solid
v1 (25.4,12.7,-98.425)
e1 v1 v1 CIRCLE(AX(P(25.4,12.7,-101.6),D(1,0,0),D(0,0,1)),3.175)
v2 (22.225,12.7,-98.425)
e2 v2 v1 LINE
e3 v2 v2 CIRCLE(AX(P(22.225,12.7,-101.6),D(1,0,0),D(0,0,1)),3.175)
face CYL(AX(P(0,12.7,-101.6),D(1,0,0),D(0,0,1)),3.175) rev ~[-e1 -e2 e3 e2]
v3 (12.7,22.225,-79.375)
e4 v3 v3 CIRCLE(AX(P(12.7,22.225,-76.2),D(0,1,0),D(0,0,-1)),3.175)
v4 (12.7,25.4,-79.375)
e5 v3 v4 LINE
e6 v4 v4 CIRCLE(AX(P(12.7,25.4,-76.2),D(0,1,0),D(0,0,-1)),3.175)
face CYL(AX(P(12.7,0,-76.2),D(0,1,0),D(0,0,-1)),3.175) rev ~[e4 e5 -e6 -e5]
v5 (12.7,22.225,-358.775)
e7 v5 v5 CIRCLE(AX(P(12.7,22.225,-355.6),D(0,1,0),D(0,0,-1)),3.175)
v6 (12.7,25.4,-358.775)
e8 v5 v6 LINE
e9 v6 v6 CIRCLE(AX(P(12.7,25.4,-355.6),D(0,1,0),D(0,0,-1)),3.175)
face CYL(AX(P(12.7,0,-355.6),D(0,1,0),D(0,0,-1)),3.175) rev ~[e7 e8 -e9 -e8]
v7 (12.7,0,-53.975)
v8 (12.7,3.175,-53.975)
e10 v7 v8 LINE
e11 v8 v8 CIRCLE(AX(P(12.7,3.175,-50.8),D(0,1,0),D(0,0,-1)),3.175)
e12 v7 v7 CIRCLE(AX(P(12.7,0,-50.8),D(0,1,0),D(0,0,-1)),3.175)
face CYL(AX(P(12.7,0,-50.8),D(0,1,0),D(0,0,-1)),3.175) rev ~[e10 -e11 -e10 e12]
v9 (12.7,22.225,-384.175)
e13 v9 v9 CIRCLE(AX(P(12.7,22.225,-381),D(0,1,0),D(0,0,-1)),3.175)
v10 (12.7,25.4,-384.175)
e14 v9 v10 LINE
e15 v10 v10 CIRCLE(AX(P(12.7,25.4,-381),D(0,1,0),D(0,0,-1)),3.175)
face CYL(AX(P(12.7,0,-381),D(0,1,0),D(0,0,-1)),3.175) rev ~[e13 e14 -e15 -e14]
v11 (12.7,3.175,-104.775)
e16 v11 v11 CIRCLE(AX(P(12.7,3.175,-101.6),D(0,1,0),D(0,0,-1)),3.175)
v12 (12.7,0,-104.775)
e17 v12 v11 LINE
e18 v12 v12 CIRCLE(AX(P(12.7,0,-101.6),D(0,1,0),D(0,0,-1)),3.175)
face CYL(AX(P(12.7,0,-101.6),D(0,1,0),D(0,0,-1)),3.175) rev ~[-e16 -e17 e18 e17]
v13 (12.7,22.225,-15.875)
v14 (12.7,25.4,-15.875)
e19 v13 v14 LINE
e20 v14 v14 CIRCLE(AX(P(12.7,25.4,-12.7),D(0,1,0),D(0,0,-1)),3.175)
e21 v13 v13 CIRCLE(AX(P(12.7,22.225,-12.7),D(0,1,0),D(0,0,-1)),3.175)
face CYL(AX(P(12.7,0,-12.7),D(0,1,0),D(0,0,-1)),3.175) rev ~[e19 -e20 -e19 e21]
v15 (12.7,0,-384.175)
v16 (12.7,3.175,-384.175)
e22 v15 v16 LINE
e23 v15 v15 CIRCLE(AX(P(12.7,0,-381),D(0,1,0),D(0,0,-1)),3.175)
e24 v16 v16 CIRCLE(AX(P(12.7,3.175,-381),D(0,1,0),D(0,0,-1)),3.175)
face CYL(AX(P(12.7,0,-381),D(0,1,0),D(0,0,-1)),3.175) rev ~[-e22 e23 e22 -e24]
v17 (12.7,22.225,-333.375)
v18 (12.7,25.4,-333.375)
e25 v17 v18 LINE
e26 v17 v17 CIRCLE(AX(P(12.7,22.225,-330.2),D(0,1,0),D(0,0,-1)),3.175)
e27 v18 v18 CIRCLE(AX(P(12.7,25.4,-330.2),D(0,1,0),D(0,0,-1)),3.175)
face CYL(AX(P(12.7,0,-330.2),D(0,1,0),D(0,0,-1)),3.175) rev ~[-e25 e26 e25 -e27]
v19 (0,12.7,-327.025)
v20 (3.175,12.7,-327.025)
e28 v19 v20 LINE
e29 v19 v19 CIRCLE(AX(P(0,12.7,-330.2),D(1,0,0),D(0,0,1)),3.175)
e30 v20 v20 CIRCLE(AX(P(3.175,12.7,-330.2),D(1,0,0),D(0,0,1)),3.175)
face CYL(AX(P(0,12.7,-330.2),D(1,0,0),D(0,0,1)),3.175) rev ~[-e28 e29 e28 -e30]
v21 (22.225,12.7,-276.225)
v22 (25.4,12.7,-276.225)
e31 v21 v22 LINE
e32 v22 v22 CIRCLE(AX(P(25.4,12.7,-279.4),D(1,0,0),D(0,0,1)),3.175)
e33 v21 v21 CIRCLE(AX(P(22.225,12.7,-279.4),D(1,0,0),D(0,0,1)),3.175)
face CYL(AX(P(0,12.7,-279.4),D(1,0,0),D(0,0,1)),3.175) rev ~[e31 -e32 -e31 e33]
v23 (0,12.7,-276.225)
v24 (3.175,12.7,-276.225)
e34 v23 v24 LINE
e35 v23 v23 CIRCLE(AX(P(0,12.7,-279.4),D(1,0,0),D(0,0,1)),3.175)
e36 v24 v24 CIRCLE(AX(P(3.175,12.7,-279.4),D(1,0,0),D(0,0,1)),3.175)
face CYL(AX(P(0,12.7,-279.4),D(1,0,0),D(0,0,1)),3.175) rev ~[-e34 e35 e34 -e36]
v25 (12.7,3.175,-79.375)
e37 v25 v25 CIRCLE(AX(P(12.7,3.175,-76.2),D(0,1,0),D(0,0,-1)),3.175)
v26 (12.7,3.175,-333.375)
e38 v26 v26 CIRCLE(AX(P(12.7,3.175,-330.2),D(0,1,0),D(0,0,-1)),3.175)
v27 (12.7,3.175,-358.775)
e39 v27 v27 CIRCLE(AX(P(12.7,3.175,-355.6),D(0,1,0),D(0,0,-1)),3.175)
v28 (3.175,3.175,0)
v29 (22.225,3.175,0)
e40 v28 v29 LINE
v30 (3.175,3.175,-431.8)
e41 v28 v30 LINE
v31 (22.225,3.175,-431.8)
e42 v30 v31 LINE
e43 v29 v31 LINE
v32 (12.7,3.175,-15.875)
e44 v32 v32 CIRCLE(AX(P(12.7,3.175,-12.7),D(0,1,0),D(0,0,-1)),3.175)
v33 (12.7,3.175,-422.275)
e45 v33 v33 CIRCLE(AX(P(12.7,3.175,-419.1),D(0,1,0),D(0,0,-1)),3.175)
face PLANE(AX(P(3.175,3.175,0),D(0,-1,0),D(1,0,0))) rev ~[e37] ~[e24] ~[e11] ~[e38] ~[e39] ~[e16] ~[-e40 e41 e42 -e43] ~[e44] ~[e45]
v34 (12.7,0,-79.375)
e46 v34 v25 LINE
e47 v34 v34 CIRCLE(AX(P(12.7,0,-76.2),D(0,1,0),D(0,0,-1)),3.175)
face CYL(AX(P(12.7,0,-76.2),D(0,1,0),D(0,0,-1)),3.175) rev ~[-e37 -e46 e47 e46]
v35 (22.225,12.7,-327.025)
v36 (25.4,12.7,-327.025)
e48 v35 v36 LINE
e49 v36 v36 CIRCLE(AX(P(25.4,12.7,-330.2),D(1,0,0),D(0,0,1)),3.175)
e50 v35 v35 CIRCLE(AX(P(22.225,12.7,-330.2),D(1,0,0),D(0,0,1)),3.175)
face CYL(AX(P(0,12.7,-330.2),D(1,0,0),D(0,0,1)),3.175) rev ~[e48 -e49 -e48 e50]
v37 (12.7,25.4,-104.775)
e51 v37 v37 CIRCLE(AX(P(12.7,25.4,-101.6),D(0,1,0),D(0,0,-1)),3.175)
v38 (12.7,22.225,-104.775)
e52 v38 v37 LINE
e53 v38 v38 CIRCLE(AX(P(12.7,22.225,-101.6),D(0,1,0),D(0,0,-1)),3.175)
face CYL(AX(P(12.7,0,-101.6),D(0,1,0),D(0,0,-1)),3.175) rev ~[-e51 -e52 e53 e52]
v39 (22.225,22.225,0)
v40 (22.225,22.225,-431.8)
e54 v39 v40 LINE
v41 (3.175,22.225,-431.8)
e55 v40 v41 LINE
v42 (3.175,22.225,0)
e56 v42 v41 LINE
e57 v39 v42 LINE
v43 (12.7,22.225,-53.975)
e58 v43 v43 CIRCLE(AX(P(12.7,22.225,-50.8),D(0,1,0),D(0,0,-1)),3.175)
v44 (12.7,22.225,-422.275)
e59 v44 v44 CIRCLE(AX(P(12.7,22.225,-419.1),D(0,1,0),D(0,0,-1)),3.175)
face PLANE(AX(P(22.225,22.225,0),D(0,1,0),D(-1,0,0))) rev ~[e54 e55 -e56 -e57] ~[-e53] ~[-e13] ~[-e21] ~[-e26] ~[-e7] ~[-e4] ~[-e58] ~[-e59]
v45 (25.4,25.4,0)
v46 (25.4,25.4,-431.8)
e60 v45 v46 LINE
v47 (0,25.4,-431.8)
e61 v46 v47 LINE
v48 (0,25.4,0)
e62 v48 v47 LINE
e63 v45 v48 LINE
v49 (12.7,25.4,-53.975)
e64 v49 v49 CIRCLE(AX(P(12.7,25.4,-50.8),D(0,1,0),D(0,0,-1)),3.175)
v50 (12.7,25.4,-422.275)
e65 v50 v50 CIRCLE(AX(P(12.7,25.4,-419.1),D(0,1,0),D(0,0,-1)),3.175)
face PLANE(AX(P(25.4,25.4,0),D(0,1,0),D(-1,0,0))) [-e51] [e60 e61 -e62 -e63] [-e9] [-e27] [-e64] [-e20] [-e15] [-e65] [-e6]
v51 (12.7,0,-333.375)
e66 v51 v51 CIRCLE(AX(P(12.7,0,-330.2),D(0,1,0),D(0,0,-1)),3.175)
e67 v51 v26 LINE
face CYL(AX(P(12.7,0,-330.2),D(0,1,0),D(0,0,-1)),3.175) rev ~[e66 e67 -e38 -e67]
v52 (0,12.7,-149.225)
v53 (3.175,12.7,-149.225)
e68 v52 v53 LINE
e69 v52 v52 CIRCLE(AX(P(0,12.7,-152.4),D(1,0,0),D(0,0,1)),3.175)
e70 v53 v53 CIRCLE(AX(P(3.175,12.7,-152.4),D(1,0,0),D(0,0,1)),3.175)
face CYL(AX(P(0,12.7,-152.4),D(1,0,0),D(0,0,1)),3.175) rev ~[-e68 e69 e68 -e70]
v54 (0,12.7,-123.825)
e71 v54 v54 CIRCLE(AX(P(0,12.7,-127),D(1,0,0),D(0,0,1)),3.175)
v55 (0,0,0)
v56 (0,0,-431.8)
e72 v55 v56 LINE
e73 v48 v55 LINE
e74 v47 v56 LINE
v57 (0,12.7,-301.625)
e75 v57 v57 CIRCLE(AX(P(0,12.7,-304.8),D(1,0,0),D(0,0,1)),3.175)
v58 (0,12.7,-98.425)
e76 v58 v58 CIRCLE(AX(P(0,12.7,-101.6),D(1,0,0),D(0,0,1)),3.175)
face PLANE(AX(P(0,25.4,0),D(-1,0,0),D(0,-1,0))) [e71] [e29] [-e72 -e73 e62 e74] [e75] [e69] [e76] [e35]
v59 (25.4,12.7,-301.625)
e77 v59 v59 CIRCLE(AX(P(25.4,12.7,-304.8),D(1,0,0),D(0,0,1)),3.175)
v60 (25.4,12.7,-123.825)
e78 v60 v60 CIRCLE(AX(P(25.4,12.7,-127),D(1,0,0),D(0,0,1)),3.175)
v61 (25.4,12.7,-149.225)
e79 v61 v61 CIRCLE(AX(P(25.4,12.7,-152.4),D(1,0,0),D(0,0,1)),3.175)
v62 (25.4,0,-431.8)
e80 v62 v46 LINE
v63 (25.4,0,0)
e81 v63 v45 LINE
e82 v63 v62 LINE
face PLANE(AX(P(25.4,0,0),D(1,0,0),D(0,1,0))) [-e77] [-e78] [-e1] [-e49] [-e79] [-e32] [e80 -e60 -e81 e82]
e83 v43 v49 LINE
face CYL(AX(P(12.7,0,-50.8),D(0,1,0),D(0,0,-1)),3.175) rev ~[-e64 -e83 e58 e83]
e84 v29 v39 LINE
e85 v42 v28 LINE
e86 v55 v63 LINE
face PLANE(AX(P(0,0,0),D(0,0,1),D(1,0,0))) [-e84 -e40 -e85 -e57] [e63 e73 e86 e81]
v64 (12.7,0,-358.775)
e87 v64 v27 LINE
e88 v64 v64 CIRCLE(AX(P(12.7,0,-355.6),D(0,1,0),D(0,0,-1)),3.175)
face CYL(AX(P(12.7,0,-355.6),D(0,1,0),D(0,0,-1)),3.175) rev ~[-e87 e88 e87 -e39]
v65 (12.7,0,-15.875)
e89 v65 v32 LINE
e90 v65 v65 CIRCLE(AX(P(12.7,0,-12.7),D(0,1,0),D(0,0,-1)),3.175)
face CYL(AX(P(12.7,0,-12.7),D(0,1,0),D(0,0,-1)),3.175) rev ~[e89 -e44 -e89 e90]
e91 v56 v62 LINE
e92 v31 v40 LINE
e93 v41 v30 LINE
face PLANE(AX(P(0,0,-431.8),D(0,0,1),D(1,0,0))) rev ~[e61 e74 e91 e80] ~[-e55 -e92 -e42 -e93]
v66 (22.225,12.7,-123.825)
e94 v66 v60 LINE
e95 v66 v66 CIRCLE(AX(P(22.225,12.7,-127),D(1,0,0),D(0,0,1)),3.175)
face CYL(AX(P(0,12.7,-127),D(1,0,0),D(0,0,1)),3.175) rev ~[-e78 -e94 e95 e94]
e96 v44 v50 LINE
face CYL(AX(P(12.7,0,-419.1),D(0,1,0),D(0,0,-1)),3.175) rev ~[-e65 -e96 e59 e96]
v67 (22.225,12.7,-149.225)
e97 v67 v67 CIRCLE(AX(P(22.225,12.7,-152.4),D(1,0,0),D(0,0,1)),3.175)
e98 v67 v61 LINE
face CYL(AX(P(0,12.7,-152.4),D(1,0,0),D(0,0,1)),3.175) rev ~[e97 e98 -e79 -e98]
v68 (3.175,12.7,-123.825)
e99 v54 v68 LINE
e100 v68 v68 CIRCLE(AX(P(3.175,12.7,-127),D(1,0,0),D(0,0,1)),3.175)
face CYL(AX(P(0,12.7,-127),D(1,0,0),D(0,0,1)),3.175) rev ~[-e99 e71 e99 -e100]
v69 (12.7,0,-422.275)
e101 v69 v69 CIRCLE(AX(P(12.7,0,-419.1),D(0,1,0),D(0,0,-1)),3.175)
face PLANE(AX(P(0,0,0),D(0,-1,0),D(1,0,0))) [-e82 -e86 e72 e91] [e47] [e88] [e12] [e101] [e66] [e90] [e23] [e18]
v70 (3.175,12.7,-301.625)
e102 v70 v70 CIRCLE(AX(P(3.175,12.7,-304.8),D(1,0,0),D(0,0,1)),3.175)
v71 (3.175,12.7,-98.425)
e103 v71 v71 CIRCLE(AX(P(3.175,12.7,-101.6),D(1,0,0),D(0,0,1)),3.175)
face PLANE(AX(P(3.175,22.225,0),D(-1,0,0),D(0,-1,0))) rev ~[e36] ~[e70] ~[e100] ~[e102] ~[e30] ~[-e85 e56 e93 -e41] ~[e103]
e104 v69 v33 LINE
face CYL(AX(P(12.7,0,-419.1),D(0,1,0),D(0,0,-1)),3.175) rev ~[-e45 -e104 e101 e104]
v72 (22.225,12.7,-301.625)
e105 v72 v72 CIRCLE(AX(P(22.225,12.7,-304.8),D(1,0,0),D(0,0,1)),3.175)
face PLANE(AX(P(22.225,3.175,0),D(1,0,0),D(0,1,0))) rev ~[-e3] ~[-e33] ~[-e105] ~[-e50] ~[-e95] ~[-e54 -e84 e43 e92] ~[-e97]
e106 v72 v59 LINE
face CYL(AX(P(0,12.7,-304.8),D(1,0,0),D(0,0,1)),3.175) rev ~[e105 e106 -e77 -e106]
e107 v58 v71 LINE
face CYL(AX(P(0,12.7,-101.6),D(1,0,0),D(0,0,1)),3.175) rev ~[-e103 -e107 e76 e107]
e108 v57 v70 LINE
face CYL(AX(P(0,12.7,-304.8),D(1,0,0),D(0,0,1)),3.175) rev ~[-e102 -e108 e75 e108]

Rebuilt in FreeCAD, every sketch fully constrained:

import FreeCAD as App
import Part
import Sketcher

V = App.Vector
Q = App.Units.Quantity

doc = App.newDocument("Part")
params = doc.addObject("Spreadsheet::Sheet", "Params")
for row, (alias, value) in enumerate([
    ("sketch1_width", "1 in"),
    ("pad1_length", "17 in"),
    ("sketch2_diameter", "0.25 in"),
    ("hole_diameter", "0.25 in"),
    ("hole_depth", "1 in"),
    ("sketch3_diameter", "0.25 in"),
    ("hole2_diameter", "0.25 in"),
    ("hole2_depth", "1 in"),
], start=1):
    params.set(f"A{row}", alias)
    params.set(f"B{row}", "=" + value)
    params.setAlias(f"B{row}", alias)

body = doc.addObject("PartDesign::Body", "Body")

# Sketch on XY plane
sketch1 = body.newObject("Sketcher::SketchObject", "Sketch")
sketch1.AttachmentSupport = (doc.getObject("XY_Plane"), [""])
sketch1.MapMode = "FlatFace"
sketch1.addGeometry([
    Part.LineSegment(V(0, 25.4, 0), V(0, 0, 0)),  # 0
    Part.LineSegment(V(0, 0, 0), V(25.4, 0, 0)),  # 1
    Part.LineSegment(V(25.4, 0, 0), V(25.4, 25.4, 0)),  # 2
    Part.LineSegment(V(25.4, 25.4, 0), V(0, 25.4, 0)),  # 3
    Part.LineSegment(V(22.225, 3.175, 0), V(3.175, 3.175, 0)),  # 4
    Part.LineSegment(V(3.175, 3.175, 0), V(3.175, 22.225, 0)),  # 5
    Part.LineSegment(V(3.175, 22.225, 0), V(22.225, 22.225, 0)),  # 6
    Part.LineSegment(V(22.225, 22.225, 0), V(22.225, 3.175, 0)),  # 7
], False)
sketch1.addConstraint([
    Sketcher.Constraint("Coincident", 0, 2, 1, 1),
    Sketcher.Constraint("Coincident", 1, 2, 2, 1),
    Sketcher.Constraint("Coincident", 2, 2, 3, 1),
    Sketcher.Constraint("Coincident", 3, 2, 0, 1),
    Sketcher.Constraint("Coincident", 4, 2, 5, 1),
    Sketcher.Constraint("Coincident", 5, 2, 6, 1),
    Sketcher.Constraint("Coincident", 6, 2, 7, 1),
    Sketcher.Constraint("Coincident", 7, 2, 4, 1),
    Sketcher.Constraint("Vertical", 0),
    Sketcher.Constraint("Horizontal", 1),
    Sketcher.Constraint("Vertical", 2),
    Sketcher.Constraint("Horizontal", 3),
    Sketcher.Constraint("Horizontal", 4),
    Sketcher.Constraint("Vertical", 5),
    Sketcher.Constraint("Horizontal", 6),
    Sketcher.Constraint("Vertical", 7),
    Sketcher.Constraint("Coincident", 0, 2, -1, 1),
    Sketcher.Constraint("Equal", 3, 0),
    Sketcher.Constraint("Equal", 6, 5),
    Sketcher.Constraint("DistanceX", 1, 1, 1, 2, Q("1 in")),
    Sketcher.Constraint("DistanceX", -1, 1, 4, 2, Q("0.125 in")),
    Sketcher.Constraint("DistanceY", -1, 1, 4, 2, Q("0.125 in")),
    Sketcher.Constraint("DistanceY", 5, 2, 3, 2, Q("0.125 in")),
])
sketch1.setExpression("Constraints[19]", "Params.sketch1_width")
pad1 = body.newObject("PartDesign::Pad", "Pad")
pad1.Profile = sketch1
pad1.setExpression("Length", "Params.pad1_length")
pad1.Reversed = True

# Sketch on YZ plane
sketch2 = body.newObject("Sketcher::SketchObject", "Sketch001")
sketch2.AttachmentSupport = (doc.getObject("YZ_Plane"), [""])
sketch2.MapMode = "FlatFace"
sketch2.addGeometry([
    Part.Circle(V(12.7, -304.8, 0), V(0, 0, 1), 3.175),  # 0
    Part.Circle(V(12.7, -279.4, 0), V(0, 0, 1), 3.175),  # 1
    Part.Circle(V(12.7, -330.2, 0), V(0, 0, 1), 3.175),  # 2
    Part.Circle(V(12.7, -127, 0), V(0, 0, 1), 3.175),  # 3
    Part.Circle(V(12.7, -101.6, 0), V(0, 0, 1), 3.175),  # 4
    Part.Circle(V(12.7, -152.4, 0), V(0, 0, 1), 3.175),  # 5
], False)
sketch2.addConstraint([
    Sketcher.Constraint("Equal", 0, 1),
    Sketcher.Constraint("Equal", 1, 2),
    Sketcher.Constraint("Equal", 2, 3),
    Sketcher.Constraint("Equal", 3, 4),
    Sketcher.Constraint("Equal", 4, 5),
    Sketcher.Constraint("Vertical", 0, 3, 1, 3),
    Sketcher.Constraint("Vertical", 1, 3, 2, 3),
    Sketcher.Constraint("Vertical", 2, 3, 3, 3),
    Sketcher.Constraint("Vertical", 3, 3, 4, 3),
    Sketcher.Constraint("Vertical", 4, 3, 5, 3),
    Sketcher.Constraint("Diameter", 0, Q("0.25 in")),
    Sketcher.Constraint("DistanceY", 0, 3, -1, 1, Q("12 in")),
    Sketcher.Constraint("DistanceY", 1, 3, -1, 1, Q("11 in")),
    Sketcher.Constraint("DistanceY", 2, 3, -1, 1, Q("13 in")),
    Sketcher.Constraint("DistanceY", 3, 3, -1, 1, Q("5 in")),
    Sketcher.Constraint("DistanceY", 4, 3, -1, 1, Q("4 in")),
    Sketcher.Constraint("DistanceY", 5, 3, -1, 1, Q("6 in")),
    Sketcher.Constraint("DistanceX", -1, 1, 0, 3, Q("0.5 in")),
])
sketch2.setExpression("Constraints[10]", "Params.sketch2_diameter")
doc.recompute()
hole = body.newObject("PartDesign::Hole", "Hole")
hole.Profile = sketch2
hole.ThreadType = "None"
hole.setExpression("Diameter", "Params.hole_diameter")
hole.DepthType = "Dimension"
hole.setExpression("Depth", "Params.hole_depth")
hole.DrillPoint = "Angled"
hole.DrillPointAngle = 118
hole.Reversed = True

# Sketch on XZ plane
sketch3 = body.newObject("Sketcher::SketchObject", "Sketch002")
sketch3.AttachmentSupport = (doc.getObject("XZ_Plane"), [""])
sketch3.MapMode = "FlatFace"
sketch3.addGeometry([
    Part.Circle(V(12.7, -330.2, 0), V(0, 0, 1), 3.175),  # 0
    Part.Circle(V(12.7, -355.6, 0), V(0, 0, 1), 3.175),  # 1
    Part.Circle(V(12.7, -381, 0), V(0, 0, 1), 3.175),  # 2
    Part.Circle(V(12.7, -101.6, 0), V(0, 0, 1), 3.175),  # 3
    Part.Circle(V(12.7, -76.2, 0), V(0, 0, 1), 3.175),  # 4
    Part.Circle(V(12.7, -50.8, 0), V(0, 0, 1), 3.175),  # 5
    Part.Circle(V(12.7, -419.1, 0), V(0, 0, 1), 3.175),  # 6
    Part.Circle(V(12.7, -12.7, 0), V(0, 0, 1), 3.175),  # 7
], False)
sketch3.addConstraint([
    Sketcher.Constraint("Equal", 0, 1),
    Sketcher.Constraint("Equal", 1, 2),
    Sketcher.Constraint("Equal", 2, 3),
    Sketcher.Constraint("Equal", 3, 4),
    Sketcher.Constraint("Equal", 4, 5),
    Sketcher.Constraint("Equal", 5, 6),
    Sketcher.Constraint("Equal", 6, 7),
    Sketcher.Constraint("Vertical", 0, 3, 1, 3),
    Sketcher.Constraint("Vertical", 1, 3, 2, 3),
    Sketcher.Constraint("Vertical", 2, 3, 3, 3),
    Sketcher.Constraint("Vertical", 3, 3, 4, 3),
    Sketcher.Constraint("Vertical", 4, 3, 5, 3),
    Sketcher.Constraint("Vertical", 5, 3, 6, 3),
    Sketcher.Constraint("Vertical", 6, 3, 7, 3),
    Sketcher.Constraint("Diameter", 0, Q("0.25 in")),
    Sketcher.Constraint("DistanceY", 0, 3, -1, 1, Q("13 in")),
    Sketcher.Constraint("DistanceY", 1, 3, -1, 1, Q("14 in")),
    Sketcher.Constraint("DistanceY", 2, 3, -1, 1, Q("15 in")),
    Sketcher.Constraint("DistanceY", 3, 3, -1, 1, Q("4 in")),
    Sketcher.Constraint("DistanceY", 4, 3, -1, 1, Q("3 in")),
    Sketcher.Constraint("DistanceY", 5, 3, -1, 1, Q("2 in")),
    Sketcher.Constraint("DistanceX", -1, 1, 0, 3, Q("0.5 in")),
    Sketcher.Constraint("DistanceY", 6, 3, -1, 1, Q("16.5 in")),
    Sketcher.Constraint("DistanceY", 7, 3, -1, 1, Q("0.5 in")),
])
sketch3.setExpression("Constraints[14]", "Params.sketch3_diameter")
doc.recompute()
hole2 = body.newObject("PartDesign::Hole", "Hole001")
hole2.Profile = sketch3
hole2.ThreadType = "None"
hole2.setExpression("Diameter", "Params.hole2_diameter")
hole2.DepthType = "Dimension"
hole2.setExpression("Depth", "Params.hole2_depth")
hole2.DrillPoint = "Angled"
hole2.DrillPointAngle = 118

doc.recompute()
